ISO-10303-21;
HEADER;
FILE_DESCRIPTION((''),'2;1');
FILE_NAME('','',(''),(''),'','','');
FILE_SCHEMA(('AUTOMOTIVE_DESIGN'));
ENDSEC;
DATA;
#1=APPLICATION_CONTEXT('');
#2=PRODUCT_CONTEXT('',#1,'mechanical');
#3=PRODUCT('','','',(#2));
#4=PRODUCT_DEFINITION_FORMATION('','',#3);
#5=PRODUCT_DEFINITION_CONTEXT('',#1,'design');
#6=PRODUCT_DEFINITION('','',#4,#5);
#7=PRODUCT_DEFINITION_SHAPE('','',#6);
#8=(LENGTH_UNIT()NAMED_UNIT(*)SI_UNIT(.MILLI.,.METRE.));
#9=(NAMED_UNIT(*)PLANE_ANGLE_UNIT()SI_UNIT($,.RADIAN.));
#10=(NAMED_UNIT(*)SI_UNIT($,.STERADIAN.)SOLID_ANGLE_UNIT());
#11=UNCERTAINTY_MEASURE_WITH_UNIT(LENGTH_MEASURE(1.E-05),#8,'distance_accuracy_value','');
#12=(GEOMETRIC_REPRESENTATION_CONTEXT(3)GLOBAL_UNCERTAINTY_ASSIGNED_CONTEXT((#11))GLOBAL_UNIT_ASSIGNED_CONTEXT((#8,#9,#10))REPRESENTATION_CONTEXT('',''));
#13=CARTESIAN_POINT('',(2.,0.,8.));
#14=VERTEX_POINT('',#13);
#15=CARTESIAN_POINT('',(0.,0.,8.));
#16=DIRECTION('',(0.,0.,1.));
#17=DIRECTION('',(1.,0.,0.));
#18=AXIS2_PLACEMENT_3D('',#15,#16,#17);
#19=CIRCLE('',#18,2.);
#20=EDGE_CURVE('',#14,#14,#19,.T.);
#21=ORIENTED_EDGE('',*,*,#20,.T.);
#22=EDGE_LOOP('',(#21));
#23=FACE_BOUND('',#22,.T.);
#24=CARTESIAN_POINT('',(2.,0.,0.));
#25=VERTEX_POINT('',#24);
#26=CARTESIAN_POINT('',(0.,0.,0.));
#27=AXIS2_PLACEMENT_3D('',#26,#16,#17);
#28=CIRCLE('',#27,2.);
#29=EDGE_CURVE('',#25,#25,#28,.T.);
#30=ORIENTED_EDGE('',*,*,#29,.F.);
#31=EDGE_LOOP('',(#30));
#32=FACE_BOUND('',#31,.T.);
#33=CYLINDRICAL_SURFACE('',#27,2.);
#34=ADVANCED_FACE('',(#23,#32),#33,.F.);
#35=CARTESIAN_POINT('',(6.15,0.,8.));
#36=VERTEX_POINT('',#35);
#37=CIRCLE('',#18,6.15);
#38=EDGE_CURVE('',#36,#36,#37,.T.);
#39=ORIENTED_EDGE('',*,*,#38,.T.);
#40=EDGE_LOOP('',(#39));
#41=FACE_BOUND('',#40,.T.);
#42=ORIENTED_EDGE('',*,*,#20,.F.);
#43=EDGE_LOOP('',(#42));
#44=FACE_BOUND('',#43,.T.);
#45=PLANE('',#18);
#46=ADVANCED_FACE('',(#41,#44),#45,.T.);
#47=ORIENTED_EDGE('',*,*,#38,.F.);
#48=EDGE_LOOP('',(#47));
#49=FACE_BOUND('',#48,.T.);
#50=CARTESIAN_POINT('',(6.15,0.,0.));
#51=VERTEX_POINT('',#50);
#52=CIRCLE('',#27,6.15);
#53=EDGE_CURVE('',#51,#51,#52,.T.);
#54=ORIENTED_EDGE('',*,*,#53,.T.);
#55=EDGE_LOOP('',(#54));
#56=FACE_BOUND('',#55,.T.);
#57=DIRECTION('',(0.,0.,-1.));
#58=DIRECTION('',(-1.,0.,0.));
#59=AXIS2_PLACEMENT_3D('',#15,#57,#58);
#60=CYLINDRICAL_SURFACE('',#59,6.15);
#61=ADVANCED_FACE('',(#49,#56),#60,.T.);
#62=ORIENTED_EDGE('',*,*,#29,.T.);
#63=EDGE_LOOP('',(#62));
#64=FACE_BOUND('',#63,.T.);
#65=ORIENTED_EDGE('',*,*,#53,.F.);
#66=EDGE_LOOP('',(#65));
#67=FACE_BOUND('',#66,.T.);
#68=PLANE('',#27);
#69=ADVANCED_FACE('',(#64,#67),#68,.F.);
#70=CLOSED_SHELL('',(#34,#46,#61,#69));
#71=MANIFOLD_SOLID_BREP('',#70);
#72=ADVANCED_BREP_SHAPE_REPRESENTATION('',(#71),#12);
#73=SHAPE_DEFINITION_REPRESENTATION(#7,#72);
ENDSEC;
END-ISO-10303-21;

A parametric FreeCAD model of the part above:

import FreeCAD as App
import Part
import Sketcher
Q = App.Units.Quantity

doc = App.newDocument("Part")
body = doc.addObject("PartDesign::Body", "Body")

sketch1 = doc.addObject("Sketcher::SketchObject", "Sketch")
body.addObject(sketch1)
sketch1.AttachmentSupport = (doc.XY_Plane, [""])
sketch1.MapMode = "FlatFace"
sketch1.addGeometry(Part.Circle(App.Vector(0, 0, 0), App.Vector(0, 0, 1), 6), False)
sketch1.addConstraint([
    Sketcher.Constraint("Coincident", 0, 3, -1, 1),
    Sketcher.Constraint("Diameter", 0, Q("12.3 mm")),
])
pad1 = doc.addObject("PartDesign::Pad", "Pad")
body.addObject(pad1)
pad1.Profile = sketch1
pad1.Length = 8

sketch2 = doc.addObject("Sketcher::SketchObject", "Sketch001")
body.addObject(sketch2)
sketch2.AttachmentSupport = (doc.XY_Plane, [""])
sketch2.MapMode = "FlatFace"
sketch2.AttachmentOffset = App.Placement(App.Vector(0, 0, 8), App.Rotation())
sketch2.addGeometry(Part.Circle(App.Vector(0, 0, 0), App.Vector(0, 0, 1), 2), False)
sketch2.addConstraint([
    Sketcher.Constraint("Coincident", 0, 3, -1, 1),
    Sketcher.Constraint("Diameter", 0, Q("4 mm")),
])
pocket1 = doc.addObject("PartDesign::Pocket", "Pocket")
body.addObject(pocket1)
pocket1.Profile = sketch2
pocket1.Type = "ThroughAll"

doc.recompute()
